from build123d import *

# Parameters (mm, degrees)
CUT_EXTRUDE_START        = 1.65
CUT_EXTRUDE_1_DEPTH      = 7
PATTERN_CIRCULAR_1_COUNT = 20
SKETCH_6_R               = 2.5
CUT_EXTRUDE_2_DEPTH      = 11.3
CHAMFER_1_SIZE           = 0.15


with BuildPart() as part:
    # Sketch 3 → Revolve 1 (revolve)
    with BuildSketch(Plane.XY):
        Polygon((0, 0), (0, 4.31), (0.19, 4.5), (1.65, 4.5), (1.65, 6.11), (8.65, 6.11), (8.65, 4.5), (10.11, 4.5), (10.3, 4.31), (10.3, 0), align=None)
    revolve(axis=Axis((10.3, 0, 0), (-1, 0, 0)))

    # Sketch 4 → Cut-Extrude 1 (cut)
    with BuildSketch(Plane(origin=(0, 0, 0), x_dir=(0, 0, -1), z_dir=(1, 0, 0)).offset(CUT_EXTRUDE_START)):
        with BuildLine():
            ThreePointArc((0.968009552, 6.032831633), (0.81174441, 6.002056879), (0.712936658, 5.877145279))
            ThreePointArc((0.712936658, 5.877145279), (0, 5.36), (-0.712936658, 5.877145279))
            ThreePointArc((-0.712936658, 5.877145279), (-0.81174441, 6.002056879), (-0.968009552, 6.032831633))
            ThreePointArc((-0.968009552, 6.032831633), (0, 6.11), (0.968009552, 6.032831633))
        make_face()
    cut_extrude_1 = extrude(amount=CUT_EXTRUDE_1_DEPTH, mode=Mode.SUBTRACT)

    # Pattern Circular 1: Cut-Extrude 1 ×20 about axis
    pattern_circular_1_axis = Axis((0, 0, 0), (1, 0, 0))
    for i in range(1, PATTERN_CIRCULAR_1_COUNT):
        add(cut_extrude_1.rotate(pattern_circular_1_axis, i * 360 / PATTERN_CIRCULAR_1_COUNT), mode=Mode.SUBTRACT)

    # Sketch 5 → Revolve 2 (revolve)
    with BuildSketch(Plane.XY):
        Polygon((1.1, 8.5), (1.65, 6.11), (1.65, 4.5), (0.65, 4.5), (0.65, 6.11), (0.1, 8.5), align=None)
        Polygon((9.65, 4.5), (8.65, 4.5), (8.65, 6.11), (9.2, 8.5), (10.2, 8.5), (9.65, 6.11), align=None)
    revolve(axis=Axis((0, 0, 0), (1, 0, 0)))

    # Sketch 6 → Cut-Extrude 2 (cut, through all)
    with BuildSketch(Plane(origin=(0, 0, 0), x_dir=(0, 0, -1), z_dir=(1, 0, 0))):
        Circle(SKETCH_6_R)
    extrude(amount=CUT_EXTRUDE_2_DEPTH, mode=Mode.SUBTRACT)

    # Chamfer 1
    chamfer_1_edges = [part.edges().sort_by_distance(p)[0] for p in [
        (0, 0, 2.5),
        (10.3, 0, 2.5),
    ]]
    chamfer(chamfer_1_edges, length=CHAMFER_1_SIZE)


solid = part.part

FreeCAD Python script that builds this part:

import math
import FreeCAD as App
import Part
import Sketcher
from FreeCAD import Vector
Q = App.Units.Quantity


def edges_at(feature, points):
    """Names of the edges that pass closest to the given points."""
    edges = feature.Shape.Edges
    near = lambda p: min(range(len(edges)), key=lambda i: edges[i].distToShape(Part.Vertex(*p))[0])
    return sorted({f"Edge{near(p) + 1}" for p in points})

doc = App.newDocument("Part")
body = doc.addObject("PartDesign::Body", "Body")

sketch1 = body.newObject("Sketcher::SketchObject", "Sketch")
sketch1.AttachmentSupport = (doc.getObject("XY_Plane"), [""])
sketch1.MapMode = "FlatFace"
sketch1.addGeometry([
    Part.LineSegment(Vector(0, 4.31, 0), Vector(0, 0, 0)),
    Part.LineSegment(Vector(0, 0, 0), Vector(10.3, 0, 0)),
    Part.LineSegment(Vector(10.3, 0, 0), Vector(10.3, 4.31, 0)),
    Part.LineSegment(Vector(10.3, 4.31, 0), Vector(10.11, 4.5, 0)),
    Part.LineSegment(Vector(10.11, 4.5, 0), Vector(8.65, 4.5, 0)),
    Part.LineSegment(Vector(8.65, 4.5, 0), Vector(8.65, 6.11, 0)),
    Part.LineSegment(Vector(8.65, 6.11, 0), Vector(1.65, 6.11, 0)),
    Part.LineSegment(Vector(1.65, 6.11, 0), Vector(1.65, 4.5, 0)),
    Part.LineSegment(Vector(1.65, 4.5, 0), Vector(0.19, 4.5, 0)),
    Part.LineSegment(Vector(0.19, 4.5, 0), Vector(0, 4.31, 0)),
], False)
sketch1.addConstraint([
    Sketcher.Constraint("Coincident", 0, 2, 1, 1),
    Sketcher.Constraint("Coincident", 1, 2, 2, 1),
    Sketcher.Constraint("Coincident", 2, 2, 3, 1),
    Sketcher.Constraint("Coincident", 3, 2, 4, 1),
    Sketcher.Constraint("Coincident", 4, 2, 5, 1),
    Sketcher.Constraint("Coincident", 5, 2, 6, 1),
    Sketcher.Constraint("Coincident", 6, 2, 7, 1),
    Sketcher.Constraint("Coincident", 7, 2, 8, 1),
    Sketcher.Constraint("Coincident", 8, 2, 9, 1),
    Sketcher.Constraint("Coincident", 9, 2, 0, 1),
    Sketcher.Constraint("Vertical", 0),
    Sketcher.Constraint("Horizontal", 1),
    Sketcher.Constraint("Vertical", 2),
    Sketcher.Constraint("Horizontal", 4),
    Sketcher.Constraint("Vertical", 5),
    Sketcher.Constraint("Horizontal", 6),
    Sketcher.Constraint("Vertical", 7),
    Sketcher.Constraint("Horizontal", 8),
    Sketcher.Constraint("Coincident", 0, 2, -1, 1),
    Sketcher.Constraint("Perpendicular", 3, 9),
    Sketcher.Constraint("Horizontal", 4, 2, 7, 2),
    Sketcher.Constraint("Horizontal", 2, 2, 9, 2),
    Sketcher.Constraint("Equal", 4, 8),
    Sketcher.Constraint("Equal", 3, 9),
    Sketcher.Constraint("DistanceX", 6, 2, 6, 1, Q("7 mm")),
    Sketcher.Constraint("DistanceX", 1, 1, 1, 2, Q("10.3 mm")),
    Sketcher.Constraint("DistanceX", 4, 2, 4, 1, Q("1.46 mm")),
    Sketcher.Constraint("DistanceY", 0, 2, 0, 1, Q("4.31 mm")),
    Sketcher.Constraint("DistanceY", 5, 1, 5, 2, Q("1.61 mm")),
])
revolution = body.newObject("PartDesign::Revolution", "Revolution")
revolution.Profile = sketch1
revolution.ReferenceAxis = (sketch1, ["H_Axis"])
revolution.Angle = 360

sketch2 = body.newObject("Sketcher::SketchObject", "Sketch001")
sketch2.AttachmentSupport = (doc.getObject("YZ_Plane"), [""])
sketch2.MapMode = "FlatFace"
sketch2.AttachmentOffset = App.Placement(Vector(0, 0, 1.65), App.Rotation())
sketch2.addGeometry([
    Part.ArcOfCircle(Part.Circle(Vector(5.81, -0.93, 0), Vector(0, 0, 1), 0.23), math.radians(-9), math.radians(72)),
    Part.ArcOfCircle(Part.Circle(Vector(0, 0, 0), Vector(0, 0, 1), 6.11), math.radians(-9.12), math.radians(9.12)),
    Part.ArcOfCircle(Part.Circle(Vector(5.81, 0.93, 0), Vector(0, 0, 1), 0.23), math.radians(-72), math.radians(9)),
    Part.ArcOfCircle(Part.Circle(Vector(6.11, 0, 0), Vector(0, 0, 1), 0.75), math.radians(108), math.radians(252)),
], False)
sketch2.addConstraint([
    Sketcher.Constraint("Tangent", 0, 1, 1, 1),
    Sketcher.Constraint("Tangent", 1, 2, 2, 2),
    Sketcher.Constraint("Tangent", 2, 1, 3, 1),
    Sketcher.Constraint("Tangent", 3, 2, 0, 2),
    Sketcher.Constraint("Coincident", 1, 3, -1, 1),
    Sketcher.Constraint("Equal", 0, 2),
    Sketcher.Constraint("PointOnObject", 3, 3, -1),
    Sketcher.Constraint("Radius", 0, Q("0.23 mm")),
    Sketcher.Constraint("Radius", 1, Q("6.11 mm")),
    Sketcher.Constraint("Radius", 3, Q("0.75 mm")),
    Sketcher.Constraint("DistanceX", -1, 1, 3, 3, Q("6.11 mm")),
])
pocket1 = body.newObject("PartDesign::Pocket", "Pocket")
pocket1.Profile = sketch2
pocket1.Length = 7
pocket1.Reversed = True
doc.recompute()

polarpattern = body.newObject("PartDesign::PolarPattern", "PolarPattern")
polarpattern.Originals = [pocket1]
polarpattern.Axis = (doc.getObject("X_Axis"), [""])
polarpattern.Angle = 360
polarpattern.Occurrences = 20
body.Tip = polarpattern

sketch3 = body.newObject("Sketcher::SketchObject", "Sketch002")
sketch3.AttachmentSupport = (doc.getObject("XY_Plane"), [""])
sketch3.MapMode = "FlatFace"
sketch3.addGeometry([
    Part.LineSegment(Vector(1.6, 6.1, 0), Vector(1.1, 8.5, 0)),
    Part.LineSegment(Vector(1.1, 8.5, 0), Vector(0.1, 8.5, 0)),
    Part.LineSegment(Vector(0.1, 8.5, 0), Vector(0.7, 6.1, 0)),
    Part.LineSegment(Vector(0.7, 6.1, 0), Vector(0.7, 4.5, 0)),
    Part.LineSegment(Vector(0.7, 4.5, 0), Vector(1.6, 4.5, 0)),
    Part.LineSegment(Vector(1.6, 4.5, 0), Vector(1.6, 6.1, 0)),
    Part.LineSegment(Vector(8.7, 4.5, 0), Vector(9.7, 4.5, 0)),
    Part.LineSegment(Vector(9.7, 4.5, 0), Vector(9.7, 6.1, 0)),
    Part.LineSegment(Vector(9.7, 6.1, 0), Vector(10.2, 8.5, 0)),
    Part.LineSegment(Vector(10.2, 8.5, 0), Vector(9.2, 8.5, 0)),
    Part.LineSegment(Vector(9.2, 8.5, 0), Vector(8.7, 6.1, 0)),
    Part.LineSegment(Vector(8.7, 6.1, 0), Vector(8.7, 4.5, 0)),
], False)
sketch3.addConstraint([
    Sketcher.Constraint("Coincident", 0, 2, 1, 1),
    Sketcher.Constraint("Coincident", 1, 2, 2, 1),
    Sketcher.Constraint("Coincident", 2, 2, 3, 1),
    Sketcher.Constraint("Coincident", 3, 2, 4, 1),
    Sketcher.Constraint("Coincident", 4, 2, 5, 1),
    Sketcher.Constraint("Coincident", 5, 2, 0, 1),
    Sketcher.Constraint("Coincident", 6, 2, 7, 1),
    Sketcher.Constraint("Coincident", 7, 2, 8, 1),
    Sketcher.Constraint("Coincident", 8, 2, 9, 1),
    Sketcher.Constraint("Coincident", 9, 2, 10, 1),
    Sketcher.Constraint("Coincident", 10, 2, 11, 1),
    Sketcher.Constraint("Coincident", 11, 2, 6, 1),
    Sketcher.Constraint("Horizontal", 1),
    Sketcher.Constraint("Vertical", 3),
    Sketcher.Constraint("Horizontal", 4),
    Sketcher.Constraint("Vertical", 5),
    Sketcher.Constraint("Horizontal", 6),
    Sketcher.Constraint("Vertical", 7),
    Sketcher.Constraint("Horizontal", 9),
    Sketcher.Constraint("Vertical", 11),
    Sketcher.Constraint("Parallel", 0, 2),
    Sketcher.Constraint("Parallel", 8, 10),
    Sketcher.Constraint("Horizontal", 2, 2, 5, 2),
    Sketcher.Constraint("Horizontal", 4, 2, 6, 2),
    Sketcher.Constraint("Horizontal", 5, 2, 7, 2),
    Sketcher.Constraint("Horizontal", 1, 2, 8, 2),
    Sketcher.Constraint("Horizontal", 7, 2, 10, 2),
    Sketcher.Constraint("Equal", 4, 6),
    Sketcher.Constraint("Equal", 2, 8),
    Sketcher.Constraint("DistanceX", 1, 2, 1, 1, Q("1 mm")),
    Sketcher.Constraint("DistanceY", 3, 2, 0, 2, Q("4 mm")),
    Sketcher.Constraint("DistanceX", 4, 2, 6, 2, Q("8 mm")),
    Sketcher.Constraint("DistanceY", 3, 2, 3, 1, Q("1.61 mm")),
    Sketcher.Constraint("DistanceX", -1, 1, 0, 2, Q("1.1 mm")),
    Sketcher.Constraint("DistanceY", -1, 1, 0, 2, Q("8.5 mm")),
    Sketcher.Constraint("DistanceX", -1, 1, 8, 2, Q("10.2 mm")),
])
revolution2 = body.newObject("PartDesign::Revolution", "Revolution001")
revolution2.Profile = sketch3
revolution2.ReferenceAxis = (sketch3, ["H_Axis"])
revolution2.Angle = 360

sketch4 = body.newObject("Sketcher::SketchObject", "Sketch003")
sketch4.AttachmentSupport = (doc.getObject("YZ_Plane"), [""])
sketch4.MapMode = "FlatFace"
sketch4.addGeometry(Part.Circle(Vector(0, 0, 0), Vector(0, 0, 1), 2.5), False)
sketch4.addConstraint([
    Sketcher.Constraint("Coincident", 0, 3, -1, 1),
    Sketcher.Constraint("Diameter", 0, Q("5 mm")),
])
pocket2 = body.newObject("PartDesign::Pocket", "Pocket001")
pocket2.Profile = sketch4
pocket2.Type = "ThroughAll"
pocket2.Reversed = True
doc.recompute()

chamfer = body.newObject("PartDesign::Chamfer", "Chamfer")
chamfer.Base = (pocket2, edges_at(pocket2, [(0, 0, 2.5), (10.3, 0, 2.5)]))
chamfer.Size = 0.15

doc.recompute()
